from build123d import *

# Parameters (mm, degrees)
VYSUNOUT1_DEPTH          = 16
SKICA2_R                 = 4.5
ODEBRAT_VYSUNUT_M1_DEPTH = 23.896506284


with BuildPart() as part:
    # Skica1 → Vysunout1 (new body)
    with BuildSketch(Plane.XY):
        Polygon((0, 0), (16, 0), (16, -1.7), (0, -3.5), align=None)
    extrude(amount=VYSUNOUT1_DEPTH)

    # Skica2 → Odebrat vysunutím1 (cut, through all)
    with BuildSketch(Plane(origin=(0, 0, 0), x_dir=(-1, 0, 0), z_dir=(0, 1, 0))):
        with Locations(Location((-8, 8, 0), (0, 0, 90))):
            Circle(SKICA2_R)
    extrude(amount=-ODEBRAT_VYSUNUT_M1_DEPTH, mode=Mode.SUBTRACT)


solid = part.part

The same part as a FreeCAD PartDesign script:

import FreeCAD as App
import Part
import Sketcher
from FreeCAD import Vector


def add_polygon(sketch, points):
    """Adds a closed chain of lines whose ends are joined by coincident constraints."""
    first, n = sketch.GeometryCount, len(points)
    for a, b in zip(points, points[1:] + points[:1]):
        sketch.addGeometry(Part.LineSegment(App.Vector(*a, 0), App.Vector(*b, 0)), False)
    for i in range(n):
        sketch.addConstraint(Sketcher.Constraint("Coincident", first + i, 2, first + (i + 1) % n, 1))

doc = App.newDocument("Part")
body = doc.addObject("PartDesign::Body", "Body")

# Sketch on XY plane
sketch1 = doc.addObject("Sketcher::SketchObject", "Sketch")
body.addObject(sketch1)
sketch1.AttachmentSupport = (doc.XY_Plane, [""])
sketch1.MapMode = "FlatFace"
add_polygon(sketch1, [(16, 0), (0, 0), (0, -3.5), (16, -1.7)])  # lines 0-3
sketch1.addConstraint(Sketcher.Constraint("Horizontal", 0))
sketch1.addConstraint(Sketcher.Constraint("Vertical", 1))
sketch1.addConstraint(Sketcher.Constraint("Vertical", 3))
sketch1.addConstraint(Sketcher.Constraint("Coincident", 0, 2, -1, 1))
sketch1.addConstraint(Sketcher.Constraint("DistanceX", 0, 2, 0, 1, 16.0))
sketch1.addConstraint(Sketcher.Constraint("DistanceY", 1, 2, 1, 1, 3.5))
sketch1.addConstraint(Sketcher.Constraint("DistanceY", 3, 1, 3, 2, 1.7))
pad1 = doc.addObject("PartDesign::Pad", "Pad")
body.addObject(pad1)
pad1.Profile = sketch1
pad1.Length = 16

# Sketch on XZ plane
sketch2 = doc.addObject("Sketcher::SketchObject", "Sketch001")
body.addObject(sketch2)
sketch2.AttachmentSupport = (doc.XZ_Plane, [""])
sketch2.MapMode = "FlatFace"
sketch2.addGeometry(Part.Circle(Vector(8, 8, 0), Vector(0, 0, 1), 4.5), False)
sketch2.addConstraint(Sketcher.Constraint("Diameter", 0, 9.0))
sketch2.addConstraint(Sketcher.Constraint("DistanceX", -1, 1, 0, 3, 8.0))
sketch2.addConstraint(Sketcher.Constraint("DistanceY", -1, 1, 0, 3, 8.0))
pocket1 = doc.addObject("PartDesign::Pocket", "Pocket")
body.addObject(pocket1)
pocket1.Profile = sketch2
pocket1.Type = "ThroughAll"
pocket1.Reversed = True

doc.recompute()
